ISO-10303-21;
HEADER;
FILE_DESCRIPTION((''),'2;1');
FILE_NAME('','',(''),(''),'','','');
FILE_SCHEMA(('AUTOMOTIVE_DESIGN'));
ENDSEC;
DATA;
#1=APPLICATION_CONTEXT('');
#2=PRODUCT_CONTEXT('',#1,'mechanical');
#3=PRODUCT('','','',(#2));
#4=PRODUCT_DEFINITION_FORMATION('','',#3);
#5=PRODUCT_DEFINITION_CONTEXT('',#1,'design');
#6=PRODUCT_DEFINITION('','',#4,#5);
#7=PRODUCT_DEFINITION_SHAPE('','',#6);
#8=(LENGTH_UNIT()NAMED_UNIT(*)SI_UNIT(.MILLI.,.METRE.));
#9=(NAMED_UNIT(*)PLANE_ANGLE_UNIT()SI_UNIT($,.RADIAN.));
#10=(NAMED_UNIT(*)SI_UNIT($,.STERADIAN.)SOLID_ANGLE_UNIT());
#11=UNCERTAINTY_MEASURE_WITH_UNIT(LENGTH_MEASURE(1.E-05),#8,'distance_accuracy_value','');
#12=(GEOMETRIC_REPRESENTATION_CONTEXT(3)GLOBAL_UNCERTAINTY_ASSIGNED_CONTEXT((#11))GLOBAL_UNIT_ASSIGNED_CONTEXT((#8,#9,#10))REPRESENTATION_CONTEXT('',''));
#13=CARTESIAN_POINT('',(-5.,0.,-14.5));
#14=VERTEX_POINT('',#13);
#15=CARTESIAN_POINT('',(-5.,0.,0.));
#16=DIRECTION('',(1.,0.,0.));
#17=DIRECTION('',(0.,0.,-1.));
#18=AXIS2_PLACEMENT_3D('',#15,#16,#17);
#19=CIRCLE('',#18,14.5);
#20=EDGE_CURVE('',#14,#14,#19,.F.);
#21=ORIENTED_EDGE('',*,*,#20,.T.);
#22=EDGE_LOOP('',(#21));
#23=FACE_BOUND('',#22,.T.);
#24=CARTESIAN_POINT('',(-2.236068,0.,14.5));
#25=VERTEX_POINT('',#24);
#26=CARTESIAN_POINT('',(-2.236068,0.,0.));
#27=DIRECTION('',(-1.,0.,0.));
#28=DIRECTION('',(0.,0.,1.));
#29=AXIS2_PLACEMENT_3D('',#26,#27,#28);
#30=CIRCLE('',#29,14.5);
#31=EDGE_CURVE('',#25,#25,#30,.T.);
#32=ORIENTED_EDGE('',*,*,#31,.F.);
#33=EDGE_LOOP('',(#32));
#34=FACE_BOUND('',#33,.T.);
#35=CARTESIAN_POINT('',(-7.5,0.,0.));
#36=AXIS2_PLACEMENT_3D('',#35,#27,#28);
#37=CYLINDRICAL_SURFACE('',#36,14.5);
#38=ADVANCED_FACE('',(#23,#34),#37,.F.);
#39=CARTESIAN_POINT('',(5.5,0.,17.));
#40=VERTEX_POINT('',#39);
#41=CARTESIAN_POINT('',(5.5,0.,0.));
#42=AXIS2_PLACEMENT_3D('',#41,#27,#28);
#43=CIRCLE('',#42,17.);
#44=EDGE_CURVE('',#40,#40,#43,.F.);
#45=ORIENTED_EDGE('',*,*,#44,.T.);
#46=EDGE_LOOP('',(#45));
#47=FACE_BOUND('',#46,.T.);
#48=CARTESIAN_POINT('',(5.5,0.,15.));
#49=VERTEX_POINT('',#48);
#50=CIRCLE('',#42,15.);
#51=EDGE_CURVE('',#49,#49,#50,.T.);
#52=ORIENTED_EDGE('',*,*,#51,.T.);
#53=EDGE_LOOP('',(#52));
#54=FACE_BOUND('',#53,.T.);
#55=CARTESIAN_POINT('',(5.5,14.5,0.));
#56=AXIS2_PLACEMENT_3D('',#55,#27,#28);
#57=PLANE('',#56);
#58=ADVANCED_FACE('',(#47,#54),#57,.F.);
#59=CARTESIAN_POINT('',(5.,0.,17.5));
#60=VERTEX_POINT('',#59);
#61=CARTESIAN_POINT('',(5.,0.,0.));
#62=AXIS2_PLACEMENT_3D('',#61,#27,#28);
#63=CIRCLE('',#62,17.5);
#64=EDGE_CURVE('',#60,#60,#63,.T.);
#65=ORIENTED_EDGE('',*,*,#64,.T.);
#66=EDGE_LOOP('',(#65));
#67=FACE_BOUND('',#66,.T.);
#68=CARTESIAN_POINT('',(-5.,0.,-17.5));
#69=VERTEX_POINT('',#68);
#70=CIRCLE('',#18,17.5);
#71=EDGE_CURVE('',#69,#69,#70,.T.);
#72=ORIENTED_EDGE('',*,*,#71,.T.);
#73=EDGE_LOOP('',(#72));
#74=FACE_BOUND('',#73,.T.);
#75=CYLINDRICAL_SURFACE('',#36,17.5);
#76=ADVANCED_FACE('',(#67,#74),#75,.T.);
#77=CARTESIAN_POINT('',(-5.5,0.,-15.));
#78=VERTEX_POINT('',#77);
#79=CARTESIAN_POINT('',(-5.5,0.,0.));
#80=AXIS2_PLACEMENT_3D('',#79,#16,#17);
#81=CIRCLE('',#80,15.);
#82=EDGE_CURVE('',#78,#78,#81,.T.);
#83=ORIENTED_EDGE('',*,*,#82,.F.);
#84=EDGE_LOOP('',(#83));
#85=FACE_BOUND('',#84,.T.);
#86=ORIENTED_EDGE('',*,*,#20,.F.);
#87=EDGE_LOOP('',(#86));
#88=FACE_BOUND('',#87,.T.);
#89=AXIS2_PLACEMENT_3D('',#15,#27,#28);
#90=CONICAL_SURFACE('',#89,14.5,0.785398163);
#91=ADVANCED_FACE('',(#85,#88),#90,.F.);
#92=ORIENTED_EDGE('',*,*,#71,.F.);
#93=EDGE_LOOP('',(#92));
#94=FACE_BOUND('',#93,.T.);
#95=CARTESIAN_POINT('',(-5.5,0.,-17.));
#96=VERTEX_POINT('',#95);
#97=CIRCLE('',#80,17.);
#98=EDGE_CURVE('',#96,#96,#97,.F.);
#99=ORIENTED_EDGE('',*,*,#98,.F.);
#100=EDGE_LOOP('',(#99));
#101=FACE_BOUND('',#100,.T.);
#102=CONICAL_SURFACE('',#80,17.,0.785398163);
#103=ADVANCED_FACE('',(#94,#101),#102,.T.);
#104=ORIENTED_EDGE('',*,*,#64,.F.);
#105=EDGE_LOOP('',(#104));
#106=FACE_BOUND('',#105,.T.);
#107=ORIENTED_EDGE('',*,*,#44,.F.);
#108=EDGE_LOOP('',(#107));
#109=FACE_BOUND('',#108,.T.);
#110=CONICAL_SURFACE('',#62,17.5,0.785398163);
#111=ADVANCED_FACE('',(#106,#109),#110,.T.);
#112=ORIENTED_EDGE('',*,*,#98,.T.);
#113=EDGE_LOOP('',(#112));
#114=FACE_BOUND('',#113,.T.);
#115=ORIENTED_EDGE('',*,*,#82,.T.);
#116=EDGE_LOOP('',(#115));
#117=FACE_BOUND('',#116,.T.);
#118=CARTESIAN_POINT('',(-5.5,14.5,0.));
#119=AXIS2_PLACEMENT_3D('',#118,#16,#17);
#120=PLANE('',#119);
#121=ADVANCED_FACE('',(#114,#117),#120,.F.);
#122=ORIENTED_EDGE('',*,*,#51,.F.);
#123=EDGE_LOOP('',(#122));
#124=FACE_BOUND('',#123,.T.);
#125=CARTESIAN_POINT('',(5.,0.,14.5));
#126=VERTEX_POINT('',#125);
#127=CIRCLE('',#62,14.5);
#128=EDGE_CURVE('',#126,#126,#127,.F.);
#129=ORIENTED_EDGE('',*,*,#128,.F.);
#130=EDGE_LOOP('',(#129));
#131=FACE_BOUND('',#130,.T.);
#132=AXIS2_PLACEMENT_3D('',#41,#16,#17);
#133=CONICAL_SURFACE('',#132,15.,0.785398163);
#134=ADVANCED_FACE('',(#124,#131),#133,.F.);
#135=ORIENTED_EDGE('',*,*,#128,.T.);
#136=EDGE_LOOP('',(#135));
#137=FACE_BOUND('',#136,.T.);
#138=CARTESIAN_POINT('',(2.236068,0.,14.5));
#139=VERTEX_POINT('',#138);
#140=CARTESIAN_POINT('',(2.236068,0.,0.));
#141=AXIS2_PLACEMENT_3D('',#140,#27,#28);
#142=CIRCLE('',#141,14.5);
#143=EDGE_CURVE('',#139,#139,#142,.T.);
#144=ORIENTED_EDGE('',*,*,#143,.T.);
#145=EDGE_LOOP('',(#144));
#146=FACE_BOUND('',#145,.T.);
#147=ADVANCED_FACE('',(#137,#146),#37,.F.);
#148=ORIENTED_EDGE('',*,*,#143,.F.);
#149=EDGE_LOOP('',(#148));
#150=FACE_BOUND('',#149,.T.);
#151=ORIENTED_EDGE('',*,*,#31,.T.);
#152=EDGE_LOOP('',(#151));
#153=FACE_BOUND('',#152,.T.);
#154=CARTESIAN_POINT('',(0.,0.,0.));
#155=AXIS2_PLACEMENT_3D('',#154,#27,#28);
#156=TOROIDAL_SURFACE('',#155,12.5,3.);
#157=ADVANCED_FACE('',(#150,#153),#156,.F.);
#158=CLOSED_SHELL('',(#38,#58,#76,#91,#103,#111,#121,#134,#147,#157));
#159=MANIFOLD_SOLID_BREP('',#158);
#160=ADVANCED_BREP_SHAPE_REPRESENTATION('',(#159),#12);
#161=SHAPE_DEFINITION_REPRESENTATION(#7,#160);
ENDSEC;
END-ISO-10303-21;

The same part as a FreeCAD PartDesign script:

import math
import FreeCAD as App
import Part
import Sketcher
from FreeCAD import Vector
Q = App.Units.Quantity


def edges_at(feature, points):
    """Names of the edges that pass closest to the given points."""
    edges = feature.Shape.Edges
    near = lambda p: min(range(len(edges)), key=lambda i: edges[i].distToShape(Part.Vertex(*p))[0])
    return sorted({f"Edge{near(p) + 1}" for p in points})

doc = App.newDocument("Part")
body = doc.addObject("PartDesign::Body", "Body")

# Sketch on XY plane
sketch1 = body.newObject("Sketcher::SketchObject", "Sketch")
sketch1.AttachmentSupport = (doc.getObject("XY_Plane"), [""])
sketch1.MapMode = "FlatFace"
sketch1.addGeometry(Part.LineSegment(Vector(2.2, 14.5, 0), Vector(5.5, 14.5, 0)), False)
sketch1.addGeometry(Part.LineSegment(Vector(5.5, 14.5, 0), Vector(5.5, 17.5, 0)), False)
sketch1.addGeometry(Part.LineSegment(Vector(5.5, 17.5, 0), Vector(-5.5, 17.5, 0)), False)
sketch1.addGeometry(Part.LineSegment(Vector(-5.5, 17.5, 0), Vector(-5.5, 14.5, 0)), False)
sketch1.addGeometry(Part.LineSegment(Vector(-5.5, 14.5, 0), Vector(-2.2, 14.5, 0)), False)
sketch1.addGeometry(Part.ArcOfCircle(Part.Circle(Vector(0, 12.5, 0), Vector(0, 0, 1), 3), math.radians(42), math.radians(138)), False)
sketch1.addConstraint(Sketcher.Constraint("Coincident", 0, 2, 1, 1))
sketch1.addConstraint(Sketcher.Constraint("Coincident", 1, 2, 2, 1))
sketch1.addConstraint(Sketcher.Constraint("Coincident", 2, 2, 3, 1))
sketch1.addConstraint(Sketcher.Constraint("Coincident", 3, 2, 4, 1))
sketch1.addConstraint(Sketcher.Constraint("Coincident", 4, 2, 5, 2))
sketch1.addConstraint(Sketcher.Constraint("Coincident", 5, 1, 0, 1))
sketch1.addConstraint(Sketcher.Constraint("Horizontal", 0))
sketch1.addConstraint(Sketcher.Constraint("Vertical", 1))
sketch1.addConstraint(Sketcher.Constraint("Horizontal", 2))
sketch1.addConstraint(Sketcher.Constraint("Vertical", 3))
sketch1.addConstraint(Sketcher.Constraint("Horizontal", 4))
sketch1.addConstraint(Sketcher.Constraint("Symmetric", 0, 2, 3, 2, -2))
sketch1.addConstraint(Sketcher.Constraint("PointOnObject", 5, 3, -2))
sketch1.addConstraint(Sketcher.Constraint("Radius", 5, Q("3 mm")))
sketch1.addConstraint(Sketcher.Constraint("DistanceX", 2, 2, 2, 1, Q("11 mm")))
sketch1.addConstraint(Sketcher.Constraint("DistanceY", 1, 1, 1, 2, Q("3 mm")))
sketch1.addConstraint(Sketcher.Constraint("DistanceY", 5, 3, 0, 2, Q("2 mm")))
sketch1.addConstraint(Sketcher.Constraint("DistanceY", -1, 1, 5, 3, Q("12.5 mm")))
revolution = body.newObject("PartDesign::Revolution", "Revolution")
revolution.Profile = sketch1
revolution.ReferenceAxis = (sketch1, ["H_Axis"])
revolution.Angle = 360
doc.recompute()

chamfer = body.newObject("PartDesign::Chamfer", "Chamfer")
chamfer.Base = (revolution, edges_at(revolution, [(5.5, 0, -17.5), (-5.5, 0, -17.5)]))
chamfer.Size = 0.5
doc.recompute()

chamfer2 = body.newObject("PartDesign::Chamfer", "Chamfer001")
chamfer2.Base = (chamfer, edges_at(chamfer, [(-5.5, 0, -14.5), (5.5, 0, -14.5)]))
chamfer2.Size = 0.5

doc.recompute()
